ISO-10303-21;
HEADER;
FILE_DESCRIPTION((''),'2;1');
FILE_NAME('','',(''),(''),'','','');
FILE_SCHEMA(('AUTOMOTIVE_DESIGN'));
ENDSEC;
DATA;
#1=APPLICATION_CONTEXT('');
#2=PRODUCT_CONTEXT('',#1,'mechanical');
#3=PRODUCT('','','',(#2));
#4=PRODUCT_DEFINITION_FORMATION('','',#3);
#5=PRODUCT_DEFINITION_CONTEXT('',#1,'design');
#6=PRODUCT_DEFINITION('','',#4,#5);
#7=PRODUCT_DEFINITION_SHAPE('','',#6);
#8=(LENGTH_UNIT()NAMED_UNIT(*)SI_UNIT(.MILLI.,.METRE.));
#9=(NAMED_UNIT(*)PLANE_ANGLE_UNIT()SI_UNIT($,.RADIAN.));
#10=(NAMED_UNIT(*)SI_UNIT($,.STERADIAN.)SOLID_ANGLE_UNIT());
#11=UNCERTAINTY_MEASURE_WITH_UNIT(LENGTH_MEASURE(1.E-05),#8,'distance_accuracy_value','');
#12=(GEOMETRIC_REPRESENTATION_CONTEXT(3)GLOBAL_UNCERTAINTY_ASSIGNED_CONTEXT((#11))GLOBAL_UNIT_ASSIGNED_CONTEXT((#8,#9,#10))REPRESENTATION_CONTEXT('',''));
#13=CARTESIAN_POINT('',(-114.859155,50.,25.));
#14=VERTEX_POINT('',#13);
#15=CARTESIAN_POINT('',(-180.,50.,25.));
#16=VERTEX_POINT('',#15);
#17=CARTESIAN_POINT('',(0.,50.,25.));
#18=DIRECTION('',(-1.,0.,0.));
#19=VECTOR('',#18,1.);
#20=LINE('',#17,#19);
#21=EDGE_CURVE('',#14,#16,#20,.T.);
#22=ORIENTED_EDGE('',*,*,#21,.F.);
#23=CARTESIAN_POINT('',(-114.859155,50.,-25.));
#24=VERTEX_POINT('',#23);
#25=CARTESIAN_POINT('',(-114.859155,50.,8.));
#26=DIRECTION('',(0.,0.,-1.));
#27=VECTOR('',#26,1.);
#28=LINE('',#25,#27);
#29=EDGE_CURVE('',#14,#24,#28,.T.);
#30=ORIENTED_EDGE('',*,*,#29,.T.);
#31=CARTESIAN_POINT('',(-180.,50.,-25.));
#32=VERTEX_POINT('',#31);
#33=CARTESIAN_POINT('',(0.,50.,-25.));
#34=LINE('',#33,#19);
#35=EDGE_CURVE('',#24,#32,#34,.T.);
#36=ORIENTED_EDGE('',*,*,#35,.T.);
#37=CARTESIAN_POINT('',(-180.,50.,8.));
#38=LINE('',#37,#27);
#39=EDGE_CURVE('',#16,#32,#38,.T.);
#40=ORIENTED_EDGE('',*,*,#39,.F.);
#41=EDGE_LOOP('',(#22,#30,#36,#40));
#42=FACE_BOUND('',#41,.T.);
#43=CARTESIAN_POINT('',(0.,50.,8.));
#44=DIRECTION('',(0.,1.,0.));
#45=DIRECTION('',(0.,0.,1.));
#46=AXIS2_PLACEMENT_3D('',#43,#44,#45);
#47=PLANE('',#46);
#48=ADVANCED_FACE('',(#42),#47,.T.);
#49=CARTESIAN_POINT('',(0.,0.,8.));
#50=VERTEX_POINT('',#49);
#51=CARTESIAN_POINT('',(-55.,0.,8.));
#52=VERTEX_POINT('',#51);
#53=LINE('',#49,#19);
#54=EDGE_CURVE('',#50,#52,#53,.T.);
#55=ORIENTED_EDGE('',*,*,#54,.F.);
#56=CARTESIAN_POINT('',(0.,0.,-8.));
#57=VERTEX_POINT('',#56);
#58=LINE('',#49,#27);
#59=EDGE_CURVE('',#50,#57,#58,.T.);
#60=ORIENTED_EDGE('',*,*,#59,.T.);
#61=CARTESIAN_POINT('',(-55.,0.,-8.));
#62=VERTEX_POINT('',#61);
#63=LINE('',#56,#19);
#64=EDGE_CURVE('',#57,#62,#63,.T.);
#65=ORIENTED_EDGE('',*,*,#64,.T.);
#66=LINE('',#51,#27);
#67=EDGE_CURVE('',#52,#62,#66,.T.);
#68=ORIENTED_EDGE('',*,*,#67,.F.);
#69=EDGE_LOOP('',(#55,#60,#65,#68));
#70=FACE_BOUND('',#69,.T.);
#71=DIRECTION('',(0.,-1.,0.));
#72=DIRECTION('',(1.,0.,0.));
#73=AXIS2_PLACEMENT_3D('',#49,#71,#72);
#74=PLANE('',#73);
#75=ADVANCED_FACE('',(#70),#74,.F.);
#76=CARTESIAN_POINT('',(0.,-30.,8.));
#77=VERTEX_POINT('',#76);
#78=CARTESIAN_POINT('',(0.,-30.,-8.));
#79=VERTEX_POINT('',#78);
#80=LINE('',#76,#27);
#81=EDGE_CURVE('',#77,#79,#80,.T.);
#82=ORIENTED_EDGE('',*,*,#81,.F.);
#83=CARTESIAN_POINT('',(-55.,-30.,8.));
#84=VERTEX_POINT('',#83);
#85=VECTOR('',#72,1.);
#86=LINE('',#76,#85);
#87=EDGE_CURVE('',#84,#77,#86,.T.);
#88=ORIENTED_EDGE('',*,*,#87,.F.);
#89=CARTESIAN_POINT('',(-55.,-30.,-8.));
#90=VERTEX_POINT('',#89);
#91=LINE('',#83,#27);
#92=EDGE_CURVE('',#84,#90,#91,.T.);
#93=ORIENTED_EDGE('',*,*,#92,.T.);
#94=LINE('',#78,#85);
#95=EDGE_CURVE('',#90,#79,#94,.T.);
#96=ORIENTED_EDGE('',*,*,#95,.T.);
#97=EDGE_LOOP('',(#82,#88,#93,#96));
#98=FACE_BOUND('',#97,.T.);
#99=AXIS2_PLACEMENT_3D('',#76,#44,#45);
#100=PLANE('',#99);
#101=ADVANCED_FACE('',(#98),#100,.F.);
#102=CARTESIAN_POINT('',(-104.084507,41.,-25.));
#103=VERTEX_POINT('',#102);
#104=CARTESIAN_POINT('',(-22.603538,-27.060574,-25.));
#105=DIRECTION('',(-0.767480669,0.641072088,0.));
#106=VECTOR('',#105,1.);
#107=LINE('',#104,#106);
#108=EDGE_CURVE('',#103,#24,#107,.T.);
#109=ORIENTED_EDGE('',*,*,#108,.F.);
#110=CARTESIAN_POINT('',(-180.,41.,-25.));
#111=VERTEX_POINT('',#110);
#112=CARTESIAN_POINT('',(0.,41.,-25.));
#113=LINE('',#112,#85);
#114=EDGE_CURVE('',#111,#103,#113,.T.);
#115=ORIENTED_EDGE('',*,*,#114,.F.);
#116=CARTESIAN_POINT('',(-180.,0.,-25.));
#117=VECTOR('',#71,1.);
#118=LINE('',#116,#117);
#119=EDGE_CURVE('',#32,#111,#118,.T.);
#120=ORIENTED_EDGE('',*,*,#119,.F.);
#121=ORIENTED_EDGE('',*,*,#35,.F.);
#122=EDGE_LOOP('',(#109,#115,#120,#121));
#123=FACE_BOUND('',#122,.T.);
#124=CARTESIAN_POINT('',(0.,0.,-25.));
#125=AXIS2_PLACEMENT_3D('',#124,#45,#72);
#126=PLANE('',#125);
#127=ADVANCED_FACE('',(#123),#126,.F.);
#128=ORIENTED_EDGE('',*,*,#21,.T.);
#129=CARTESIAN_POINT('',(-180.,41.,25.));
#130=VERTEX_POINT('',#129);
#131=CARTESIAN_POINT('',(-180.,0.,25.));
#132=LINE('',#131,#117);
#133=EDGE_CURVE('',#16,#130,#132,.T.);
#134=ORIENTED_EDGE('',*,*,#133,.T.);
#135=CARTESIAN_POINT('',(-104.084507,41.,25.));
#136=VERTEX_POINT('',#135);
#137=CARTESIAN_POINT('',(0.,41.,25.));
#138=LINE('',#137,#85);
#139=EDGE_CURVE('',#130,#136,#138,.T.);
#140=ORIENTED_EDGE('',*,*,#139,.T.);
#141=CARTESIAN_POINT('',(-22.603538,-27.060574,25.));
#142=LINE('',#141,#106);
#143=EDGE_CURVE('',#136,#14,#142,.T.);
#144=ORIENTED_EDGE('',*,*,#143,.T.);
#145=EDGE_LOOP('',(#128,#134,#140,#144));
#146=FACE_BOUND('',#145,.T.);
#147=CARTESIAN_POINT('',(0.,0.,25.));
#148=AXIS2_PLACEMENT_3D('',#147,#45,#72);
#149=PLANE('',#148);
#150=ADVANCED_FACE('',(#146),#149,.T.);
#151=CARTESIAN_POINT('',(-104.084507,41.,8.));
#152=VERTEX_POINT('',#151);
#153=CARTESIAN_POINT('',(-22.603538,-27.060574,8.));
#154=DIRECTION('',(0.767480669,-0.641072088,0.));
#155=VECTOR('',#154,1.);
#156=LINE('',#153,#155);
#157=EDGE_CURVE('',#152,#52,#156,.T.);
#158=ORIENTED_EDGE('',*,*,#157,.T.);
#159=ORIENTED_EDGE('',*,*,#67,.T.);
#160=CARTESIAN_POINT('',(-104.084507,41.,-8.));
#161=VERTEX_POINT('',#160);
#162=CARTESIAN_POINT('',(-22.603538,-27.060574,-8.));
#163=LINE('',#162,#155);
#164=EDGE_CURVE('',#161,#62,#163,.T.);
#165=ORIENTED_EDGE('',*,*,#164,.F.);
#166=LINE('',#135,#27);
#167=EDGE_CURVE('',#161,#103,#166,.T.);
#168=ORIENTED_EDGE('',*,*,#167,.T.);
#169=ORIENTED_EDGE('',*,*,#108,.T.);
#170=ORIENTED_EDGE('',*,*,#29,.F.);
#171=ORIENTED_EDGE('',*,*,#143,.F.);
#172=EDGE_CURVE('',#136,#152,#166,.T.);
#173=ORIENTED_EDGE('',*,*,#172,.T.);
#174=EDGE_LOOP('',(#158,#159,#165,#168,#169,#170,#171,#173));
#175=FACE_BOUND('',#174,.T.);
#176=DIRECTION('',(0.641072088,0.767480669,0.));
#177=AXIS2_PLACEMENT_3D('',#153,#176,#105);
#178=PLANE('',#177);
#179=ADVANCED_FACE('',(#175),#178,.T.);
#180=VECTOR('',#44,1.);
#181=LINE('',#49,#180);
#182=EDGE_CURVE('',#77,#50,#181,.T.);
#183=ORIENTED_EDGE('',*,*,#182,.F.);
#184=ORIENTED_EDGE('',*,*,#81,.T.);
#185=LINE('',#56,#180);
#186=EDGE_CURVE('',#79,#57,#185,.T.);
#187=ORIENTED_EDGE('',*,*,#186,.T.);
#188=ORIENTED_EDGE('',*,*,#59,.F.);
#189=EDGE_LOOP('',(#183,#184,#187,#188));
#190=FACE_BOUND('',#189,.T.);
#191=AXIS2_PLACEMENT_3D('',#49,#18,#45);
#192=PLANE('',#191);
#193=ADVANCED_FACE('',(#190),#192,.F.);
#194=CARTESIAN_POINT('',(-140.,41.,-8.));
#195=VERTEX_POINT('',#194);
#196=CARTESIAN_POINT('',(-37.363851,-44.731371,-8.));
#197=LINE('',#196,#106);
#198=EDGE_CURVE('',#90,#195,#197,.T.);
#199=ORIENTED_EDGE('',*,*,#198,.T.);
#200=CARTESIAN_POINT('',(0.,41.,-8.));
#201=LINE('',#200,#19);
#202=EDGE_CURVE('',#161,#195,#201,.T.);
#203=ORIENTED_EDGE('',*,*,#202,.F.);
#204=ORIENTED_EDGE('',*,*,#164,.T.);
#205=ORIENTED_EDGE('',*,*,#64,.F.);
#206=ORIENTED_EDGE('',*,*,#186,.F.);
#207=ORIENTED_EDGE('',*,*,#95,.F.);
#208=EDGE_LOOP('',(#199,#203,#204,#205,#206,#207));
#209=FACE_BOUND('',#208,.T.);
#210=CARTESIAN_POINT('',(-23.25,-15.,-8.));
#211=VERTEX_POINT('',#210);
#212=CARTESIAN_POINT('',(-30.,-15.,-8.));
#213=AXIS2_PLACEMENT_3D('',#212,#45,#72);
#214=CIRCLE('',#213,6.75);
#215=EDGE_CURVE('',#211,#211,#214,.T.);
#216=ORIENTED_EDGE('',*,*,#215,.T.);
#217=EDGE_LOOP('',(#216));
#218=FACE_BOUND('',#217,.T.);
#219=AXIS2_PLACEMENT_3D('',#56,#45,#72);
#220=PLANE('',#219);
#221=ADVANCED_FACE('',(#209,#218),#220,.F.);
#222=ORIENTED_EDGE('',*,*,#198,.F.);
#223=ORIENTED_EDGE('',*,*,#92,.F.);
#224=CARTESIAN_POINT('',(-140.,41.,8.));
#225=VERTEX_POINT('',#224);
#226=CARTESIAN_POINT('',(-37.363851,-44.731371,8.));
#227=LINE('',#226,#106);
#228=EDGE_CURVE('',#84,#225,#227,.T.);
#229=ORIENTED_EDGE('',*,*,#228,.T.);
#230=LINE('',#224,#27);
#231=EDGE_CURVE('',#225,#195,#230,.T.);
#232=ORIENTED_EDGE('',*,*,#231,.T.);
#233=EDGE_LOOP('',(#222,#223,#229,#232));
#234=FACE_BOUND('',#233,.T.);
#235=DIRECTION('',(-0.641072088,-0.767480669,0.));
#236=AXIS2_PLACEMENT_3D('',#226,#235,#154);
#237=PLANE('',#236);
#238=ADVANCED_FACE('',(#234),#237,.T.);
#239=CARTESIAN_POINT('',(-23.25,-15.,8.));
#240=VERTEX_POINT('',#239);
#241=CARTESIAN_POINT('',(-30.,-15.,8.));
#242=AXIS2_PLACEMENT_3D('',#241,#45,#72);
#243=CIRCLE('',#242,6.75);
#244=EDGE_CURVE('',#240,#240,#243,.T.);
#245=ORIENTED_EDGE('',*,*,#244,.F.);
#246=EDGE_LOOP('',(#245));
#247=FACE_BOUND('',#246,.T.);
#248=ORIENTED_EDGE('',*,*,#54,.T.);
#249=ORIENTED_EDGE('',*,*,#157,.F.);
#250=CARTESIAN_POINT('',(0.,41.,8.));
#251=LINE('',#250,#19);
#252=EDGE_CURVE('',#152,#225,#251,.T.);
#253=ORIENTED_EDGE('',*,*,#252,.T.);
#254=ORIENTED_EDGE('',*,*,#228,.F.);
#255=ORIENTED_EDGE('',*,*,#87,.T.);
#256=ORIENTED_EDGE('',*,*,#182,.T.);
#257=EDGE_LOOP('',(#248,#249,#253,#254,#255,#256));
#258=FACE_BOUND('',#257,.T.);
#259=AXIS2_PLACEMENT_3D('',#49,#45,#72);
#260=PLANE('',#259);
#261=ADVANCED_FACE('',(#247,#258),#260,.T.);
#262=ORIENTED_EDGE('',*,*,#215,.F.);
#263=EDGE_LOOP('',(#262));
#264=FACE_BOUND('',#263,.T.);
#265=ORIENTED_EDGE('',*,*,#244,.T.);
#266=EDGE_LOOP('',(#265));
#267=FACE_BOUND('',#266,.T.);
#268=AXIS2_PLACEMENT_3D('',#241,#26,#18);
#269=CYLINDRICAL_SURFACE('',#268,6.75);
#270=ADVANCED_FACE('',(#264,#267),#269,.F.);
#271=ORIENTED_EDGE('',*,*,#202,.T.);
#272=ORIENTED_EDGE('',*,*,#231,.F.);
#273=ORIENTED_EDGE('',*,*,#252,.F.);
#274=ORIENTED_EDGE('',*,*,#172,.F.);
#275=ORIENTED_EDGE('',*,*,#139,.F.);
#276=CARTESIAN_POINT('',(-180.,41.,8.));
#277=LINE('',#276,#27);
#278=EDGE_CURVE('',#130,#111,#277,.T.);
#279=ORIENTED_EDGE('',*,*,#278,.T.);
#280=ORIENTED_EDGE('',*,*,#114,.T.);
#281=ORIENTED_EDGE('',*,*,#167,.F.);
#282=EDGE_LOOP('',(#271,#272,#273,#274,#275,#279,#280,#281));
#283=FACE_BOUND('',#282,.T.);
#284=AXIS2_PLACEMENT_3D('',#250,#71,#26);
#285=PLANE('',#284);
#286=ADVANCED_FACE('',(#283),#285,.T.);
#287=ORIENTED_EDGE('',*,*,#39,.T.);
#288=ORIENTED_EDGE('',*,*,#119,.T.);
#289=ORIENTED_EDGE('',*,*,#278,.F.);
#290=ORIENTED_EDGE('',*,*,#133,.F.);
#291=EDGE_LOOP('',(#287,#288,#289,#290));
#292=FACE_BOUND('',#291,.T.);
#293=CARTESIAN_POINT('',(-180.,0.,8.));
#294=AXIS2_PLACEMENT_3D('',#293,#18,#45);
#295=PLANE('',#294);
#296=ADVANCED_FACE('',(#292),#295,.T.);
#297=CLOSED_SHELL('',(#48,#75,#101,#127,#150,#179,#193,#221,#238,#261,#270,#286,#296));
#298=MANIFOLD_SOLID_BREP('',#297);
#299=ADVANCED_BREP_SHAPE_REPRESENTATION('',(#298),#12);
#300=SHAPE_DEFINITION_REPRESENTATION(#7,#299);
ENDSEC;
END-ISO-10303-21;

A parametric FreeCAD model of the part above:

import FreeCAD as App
import Part
import Sketcher

V = App.Vector
Q = App.Units.Quantity

doc = App.newDocument("Part")
body = doc.addObject("PartDesign::Body", "Body")

sketch1 = doc.addObject("Sketcher::SketchObject", "Sketch")
body.addObject(sketch1)
sketch1.AttachmentSupport = (doc.XY_Plane, [""])
sketch1.MapMode = "FlatFace"
sketch1.addGeometry([
    Part.LineSegment(V(-55, -30, 0), V(0, -30, 0)),
    Part.LineSegment(V(0, -30, 0), V(0, 0, 0)),
    Part.LineSegment(V(0, 0, 0), V(-55, 0, 0)),
    Part.LineSegment(V(-55, 0, 0), V(-114.859155, 50, 0)),
    Part.LineSegment(V(-114.859155, 50, 0), V(-180, 50, 0)),
    Part.LineSegment(V(-180, 50, 0), V(-180, 41, 0)),
    Part.LineSegment(V(-180, 41, 0), V(-140, 41, 0)),
    Part.LineSegment(V(-140, 41, 0), V(-55, -30, 0)),
    Part.Circle(V(-30, -15, 0), V(0, 0, 1), 6.75),
], False)
sketch1.addConstraint([
    Sketcher.Constraint("Coincident", 0, 2, 1, 1),
    Sketcher.Constraint("Coincident", 1, 2, 2, 1),
    Sketcher.Constraint("Coincident", 2, 2, 3, 1),
    Sketcher.Constraint("Coincident", 3, 2, 4, 1),
    Sketcher.Constraint("Coincident", 4, 2, 5, 1),
    Sketcher.Constraint("Coincident", 5, 2, 6, 1),
    Sketcher.Constraint("Coincident", 6, 2, 7, 1),
    Sketcher.Constraint("Coincident", 7, 2, 0, 1),
    Sketcher.Constraint("Horizontal", 0),
    Sketcher.Constraint("Vertical", 1),
    Sketcher.Constraint("Horizontal", 2),
    Sketcher.Constraint("Horizontal", 4),
    Sketcher.Constraint("Vertical", 5),
    Sketcher.Constraint("Horizontal", 6),
    Sketcher.Constraint("Coincident", 1, 2, -1, 1),
    Sketcher.Constraint("Parallel", 3, 7),
    Sketcher.Constraint("Vertical", 2, 2, 7, 2),
    Sketcher.Constraint("Diameter", 8, Q("13.5 mm")),
    Sketcher.Constraint("DistanceX", 0, 1, 0, 2, Q("55 mm")),
    Sketcher.Constraint("DistanceX", 6, 1, 6, 2, Q("40 mm")),
    Sketcher.Constraint("DistanceY", 1, 1, 1, 2, Q("30 mm")),
    Sketcher.Constraint("DistanceY", 5, 2, 5, 1, Q("9 mm")),
    Sketcher.Constraint("DistanceX", 8, 3, -1, 1, Q("30 mm")),
    Sketcher.Constraint("DistanceY", 8, 3, -1, 1, Q("15 mm")),
    Sketcher.Constraint("DistanceY", -1, 1, 3, 2, Q("50 mm")),
    Sketcher.Constraint("DistanceX", 4, 2, -1, 1, Q("180 mm")),
])
pad1 = doc.addObject("PartDesign::Pad", "Pad")
body.addObject(pad1)
pad1.Profile = sketch1
pad1.Length = 16
pad1.Midplane = True

sketch2 = doc.addObject("Sketcher::SketchObject", "Sketch001")
body.addObject(sketch2)
sketch2.AttachmentSupport = (doc.XY_Plane, [""])
sketch2.MapMode = "FlatFace"
sketch2.addGeometry([
    Part.LineSegment(V(-180, 41, 0), V(-104.084507, 41, 0)),
    Part.LineSegment(V(-104.084507, 41, 0), V(-114.859155, 50, 0)),
    Part.LineSegment(V(-114.859155, 50, 0), V(-180, 50, 0)),
    Part.LineSegment(V(-180, 50, 0), V(-180, 41, 0)),
], False)
sketch2.addConstraint([
    Sketcher.Constraint("Coincident", 0, 2, 1, 1),
    Sketcher.Constraint("Coincident", 1, 2, 2, 1),
    Sketcher.Constraint("Coincident", 2, 2, 3, 1),
    Sketcher.Constraint("Coincident", 3, 2, 0, 1),
    Sketcher.Constraint("Horizontal", 0),
    Sketcher.Constraint("Horizontal", 2),
    Sketcher.Constraint("Vertical", 3),
    Sketcher.Constraint("DistanceY", 3, 2, 3, 1, Q("9 mm")),
    Sketcher.Constraint("DistanceY", -1, 1, 0, 2, Q("41 mm")),
    Sketcher.Constraint("DistanceX", 2, 2, -1, 1, Q("180 mm")),
    Sketcher.Constraint("DistanceX", 0, 1, 0, 2, Q("75.915493 mm")),
    Sketcher.Constraint("DistanceX", 2, 2, 2, 1, Q("65.140845 mm")),
])
pad2 = doc.addObject("PartDesign::Pad", "Pad001")
body.addObject(pad2)
pad2.Profile = sketch2
pad2.Length = 50
pad2.Midplane = True

doc.recompute()
